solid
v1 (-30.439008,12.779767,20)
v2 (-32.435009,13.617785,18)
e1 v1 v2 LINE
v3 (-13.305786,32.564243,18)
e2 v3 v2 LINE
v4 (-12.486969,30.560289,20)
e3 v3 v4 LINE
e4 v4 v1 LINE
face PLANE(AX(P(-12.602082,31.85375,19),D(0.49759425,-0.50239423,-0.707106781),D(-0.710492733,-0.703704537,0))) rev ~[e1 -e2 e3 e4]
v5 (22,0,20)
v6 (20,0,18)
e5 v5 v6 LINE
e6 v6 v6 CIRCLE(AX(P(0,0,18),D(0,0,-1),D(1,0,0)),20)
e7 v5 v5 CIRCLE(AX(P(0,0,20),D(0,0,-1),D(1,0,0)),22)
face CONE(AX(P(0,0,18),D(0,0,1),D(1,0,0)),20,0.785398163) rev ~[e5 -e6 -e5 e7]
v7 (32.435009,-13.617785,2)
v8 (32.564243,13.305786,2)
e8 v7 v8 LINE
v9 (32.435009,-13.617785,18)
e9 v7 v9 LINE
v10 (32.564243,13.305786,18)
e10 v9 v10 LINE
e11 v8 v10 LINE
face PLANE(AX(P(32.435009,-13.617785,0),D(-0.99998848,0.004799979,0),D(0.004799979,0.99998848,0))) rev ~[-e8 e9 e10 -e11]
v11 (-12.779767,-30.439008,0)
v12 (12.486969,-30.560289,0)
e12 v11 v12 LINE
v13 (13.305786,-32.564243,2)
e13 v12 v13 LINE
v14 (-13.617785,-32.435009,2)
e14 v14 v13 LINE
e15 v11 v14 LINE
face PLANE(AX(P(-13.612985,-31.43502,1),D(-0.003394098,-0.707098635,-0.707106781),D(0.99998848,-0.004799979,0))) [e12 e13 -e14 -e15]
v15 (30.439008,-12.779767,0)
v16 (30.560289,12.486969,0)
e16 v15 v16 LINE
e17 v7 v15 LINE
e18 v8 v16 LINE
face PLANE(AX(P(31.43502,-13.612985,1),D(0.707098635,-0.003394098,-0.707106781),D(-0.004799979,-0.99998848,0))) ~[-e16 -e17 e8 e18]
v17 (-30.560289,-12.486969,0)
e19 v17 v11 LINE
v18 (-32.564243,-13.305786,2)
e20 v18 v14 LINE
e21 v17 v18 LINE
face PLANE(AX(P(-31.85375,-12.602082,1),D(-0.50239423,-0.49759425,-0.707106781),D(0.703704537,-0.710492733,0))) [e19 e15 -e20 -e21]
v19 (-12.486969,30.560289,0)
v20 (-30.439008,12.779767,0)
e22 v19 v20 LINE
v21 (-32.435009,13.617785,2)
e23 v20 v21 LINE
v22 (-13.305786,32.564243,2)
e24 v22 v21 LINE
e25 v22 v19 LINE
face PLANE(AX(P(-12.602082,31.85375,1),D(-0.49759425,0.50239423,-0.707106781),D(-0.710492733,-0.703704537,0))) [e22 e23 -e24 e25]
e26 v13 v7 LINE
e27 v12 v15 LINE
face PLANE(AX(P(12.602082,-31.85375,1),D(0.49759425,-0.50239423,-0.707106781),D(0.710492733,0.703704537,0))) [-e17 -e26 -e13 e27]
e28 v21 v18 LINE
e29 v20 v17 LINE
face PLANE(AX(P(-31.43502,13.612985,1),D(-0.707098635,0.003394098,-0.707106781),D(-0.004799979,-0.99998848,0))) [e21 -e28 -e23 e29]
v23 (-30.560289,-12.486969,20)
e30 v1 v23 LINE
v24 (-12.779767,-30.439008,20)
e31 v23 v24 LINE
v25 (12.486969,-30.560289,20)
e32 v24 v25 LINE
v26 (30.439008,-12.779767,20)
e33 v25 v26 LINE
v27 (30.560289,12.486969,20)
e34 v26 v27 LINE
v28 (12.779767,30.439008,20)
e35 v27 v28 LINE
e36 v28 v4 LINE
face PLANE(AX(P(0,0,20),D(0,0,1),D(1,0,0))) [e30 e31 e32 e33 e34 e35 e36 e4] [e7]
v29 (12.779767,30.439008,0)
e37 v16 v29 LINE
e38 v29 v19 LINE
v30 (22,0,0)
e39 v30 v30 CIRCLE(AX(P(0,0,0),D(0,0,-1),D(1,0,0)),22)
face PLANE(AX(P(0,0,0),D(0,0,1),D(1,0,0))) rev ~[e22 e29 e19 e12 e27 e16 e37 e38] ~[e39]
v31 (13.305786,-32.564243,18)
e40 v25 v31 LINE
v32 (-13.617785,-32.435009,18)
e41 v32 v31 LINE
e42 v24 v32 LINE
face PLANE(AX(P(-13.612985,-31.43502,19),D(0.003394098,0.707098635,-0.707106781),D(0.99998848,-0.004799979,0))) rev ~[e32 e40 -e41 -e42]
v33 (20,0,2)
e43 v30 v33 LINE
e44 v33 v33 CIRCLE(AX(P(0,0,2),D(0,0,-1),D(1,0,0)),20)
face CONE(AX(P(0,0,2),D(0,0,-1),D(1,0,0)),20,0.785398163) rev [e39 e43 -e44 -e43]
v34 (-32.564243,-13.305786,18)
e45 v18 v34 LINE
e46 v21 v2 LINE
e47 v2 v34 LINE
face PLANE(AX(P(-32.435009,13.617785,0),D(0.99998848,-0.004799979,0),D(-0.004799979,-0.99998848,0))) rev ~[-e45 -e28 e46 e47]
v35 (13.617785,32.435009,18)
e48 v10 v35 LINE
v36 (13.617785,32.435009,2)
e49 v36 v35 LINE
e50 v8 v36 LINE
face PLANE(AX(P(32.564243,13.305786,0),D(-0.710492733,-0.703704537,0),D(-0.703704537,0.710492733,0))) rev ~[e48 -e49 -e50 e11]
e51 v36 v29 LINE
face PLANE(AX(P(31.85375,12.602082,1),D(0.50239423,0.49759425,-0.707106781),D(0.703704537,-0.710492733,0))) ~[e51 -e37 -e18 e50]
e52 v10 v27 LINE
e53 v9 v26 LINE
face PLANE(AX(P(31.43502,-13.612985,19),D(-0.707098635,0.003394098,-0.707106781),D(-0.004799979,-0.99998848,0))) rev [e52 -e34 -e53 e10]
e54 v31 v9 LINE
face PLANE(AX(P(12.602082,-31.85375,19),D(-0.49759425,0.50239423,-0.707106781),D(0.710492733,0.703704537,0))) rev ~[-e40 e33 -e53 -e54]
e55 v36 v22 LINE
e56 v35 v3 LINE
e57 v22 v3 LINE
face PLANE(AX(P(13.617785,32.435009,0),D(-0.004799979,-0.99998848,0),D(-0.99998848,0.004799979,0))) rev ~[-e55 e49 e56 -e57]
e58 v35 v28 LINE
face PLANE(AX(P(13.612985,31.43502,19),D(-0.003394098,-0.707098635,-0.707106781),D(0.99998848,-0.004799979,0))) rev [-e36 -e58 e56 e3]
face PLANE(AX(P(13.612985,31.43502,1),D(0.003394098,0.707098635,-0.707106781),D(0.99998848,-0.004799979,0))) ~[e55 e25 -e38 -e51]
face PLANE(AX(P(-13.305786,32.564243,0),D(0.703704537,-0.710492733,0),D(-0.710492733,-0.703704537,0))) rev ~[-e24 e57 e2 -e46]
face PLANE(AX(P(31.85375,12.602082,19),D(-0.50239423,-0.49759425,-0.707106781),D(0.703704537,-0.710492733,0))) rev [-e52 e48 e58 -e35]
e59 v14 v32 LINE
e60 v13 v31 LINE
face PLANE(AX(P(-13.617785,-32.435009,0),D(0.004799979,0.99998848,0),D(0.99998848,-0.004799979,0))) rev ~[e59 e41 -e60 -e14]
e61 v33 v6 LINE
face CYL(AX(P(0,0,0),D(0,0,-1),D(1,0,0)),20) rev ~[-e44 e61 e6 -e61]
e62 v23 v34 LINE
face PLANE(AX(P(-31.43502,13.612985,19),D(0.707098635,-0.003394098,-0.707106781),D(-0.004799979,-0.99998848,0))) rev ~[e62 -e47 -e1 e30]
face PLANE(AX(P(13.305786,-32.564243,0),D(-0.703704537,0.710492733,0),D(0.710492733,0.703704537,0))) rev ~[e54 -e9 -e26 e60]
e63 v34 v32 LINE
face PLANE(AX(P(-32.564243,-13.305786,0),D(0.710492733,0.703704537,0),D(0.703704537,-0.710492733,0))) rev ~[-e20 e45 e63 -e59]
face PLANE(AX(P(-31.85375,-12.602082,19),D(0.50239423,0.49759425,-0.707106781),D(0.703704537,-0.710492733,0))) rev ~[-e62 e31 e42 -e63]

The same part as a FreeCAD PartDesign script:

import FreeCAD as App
import Part
import Sketcher


def edges_at(feature, points):
    """Names of the edges that pass closest to the given points."""
    edges = feature.Shape.Edges
    near = lambda p: min(range(len(edges)), key=lambda i: edges[i].distToShape(Part.Vertex(*p))[0])
    return sorted({f"Edge{near(p) + 1}" for p in points})


def add_polygon(sketch, points):
    """Adds a closed chain of lines whose ends are joined by coincident constraints."""
    first, n = sketch.GeometryCount, len(points)
    for a, b in zip(points, points[1:] + points[:1]):
        sketch.addGeometry(Part.LineSegment(App.Vector(*a, 0), App.Vector(*b, 0)), False)
    for i in range(n):
        sketch.addConstraint(Sketcher.Constraint("Coincident", first + i, 2, first + (i + 1) % n, 1))

doc = App.newDocument("Part")
body = doc.addObject("PartDesign::Body", "Body")

# Sketch on XY plane
sketch1 = body.newObject("Sketcher::SketchObject", "Sketch")
sketch1.AttachmentSupport = (doc.getObject("XY_Plane"), [""])
sketch1.MapMode = "FlatFace"
add_polygon(sketch1, [(33, 13), (14, 32), (-13, 33), (-32, 14), (-33, -13), (-14, -32), (13, -33), (32, -14)])  # lines 0-7
sketch1.addConstraint(Sketcher.Constraint("Symmetric", 0, 2, 4, 2, -1, 1))
sketch1.addConstraint(Sketcher.Constraint("Symmetric", 1, 2, 5, 2, -1, 1))
sketch1.addConstraint(Sketcher.Constraint("Symmetric", 2, 2, 6, 2, -1, 1))
sketch1.addConstraint(Sketcher.Constraint("Symmetric", 3, 2, 7, 2, -1, 1))
sketch1.addConstraint(Sketcher.Constraint("Perpendicular", 0, 2))
sketch1.addConstraint(Sketcher.Constraint("Perpendicular", 1, 3))
sketch1.addConstraint(Sketcher.Constraint("Equal", 0, 1))
sketch1.addConstraint(Sketcher.Constraint("Equal", 1, 2))
sketch1.addConstraint(Sketcher.Constraint("Equal", 2, 3))
sketch1.addConstraint(Sketcher.Constraint("DistanceX", 4, 2, 1, 2, 0.311999))
sketch1.addConstraint(Sketcher.Constraint("Distance", 0, 26.923882))
sketch1.addConstraint(Sketcher.Constraint("DistanceY", -1, 1, 0, 2, 32.435009))
pad1 = body.newObject("PartDesign::Pad", "Pad")
pad1.Profile = sketch1
pad1.Length = 20

# Sketch on XY plane
sketch2 = body.newObject("Sketcher::SketchObject", "Sketch001")
sketch2.AttachmentSupport = (doc.getObject("XY_Plane"), [""])
sketch2.MapMode = "FlatFace"
sketch2.addGeometry(Part.Circle(App.Vector(0, 0, 0), App.Vector(0, 0, 1), 20), False)
sketch2.addConstraint(Sketcher.Constraint("Coincident", 0, 3, -1, 1))
sketch2.addConstraint(Sketcher.Constraint("Diameter", 0, 40.0))
pocket1 = body.newObject("PartDesign::Pocket", "Pocket")
pocket1.Profile = sketch2
pocket1.Type = "ThroughAll"
pocket1.Reversed = True
doc.recompute()

chamfer = body.newObject("PartDesign::Chamfer", "Chamfer")
chamfer.Base = (pocket1, edges_at(pocket1, [
    (23.091, 22.87, 20),
    (32.5, -0.156, 20),
    (0.156, 32.5, 20),
    (22.87, -23.091, 20),
    (-22.87, 23.091, 20),
    (-0.156, -32.5, 20),
    (-32.5, 0.156, 20),
    (-23.091, -22.87, 20),
    (-20, 0, 20),
    (23.091, 22.87, 0),
    (32.5, -0.156, 0),
    (0.156, 32.5, 0),
    (22.87, -23.091, 0),
    (-22.87, 23.091, 0),
    (-0.156, -32.5, 0),
    (-32.5, 0.156, 0),
    (-23.091, -22.87, 0),
    (-20, 0, 0),
]))
chamfer.Size = 2

doc.recompute()
